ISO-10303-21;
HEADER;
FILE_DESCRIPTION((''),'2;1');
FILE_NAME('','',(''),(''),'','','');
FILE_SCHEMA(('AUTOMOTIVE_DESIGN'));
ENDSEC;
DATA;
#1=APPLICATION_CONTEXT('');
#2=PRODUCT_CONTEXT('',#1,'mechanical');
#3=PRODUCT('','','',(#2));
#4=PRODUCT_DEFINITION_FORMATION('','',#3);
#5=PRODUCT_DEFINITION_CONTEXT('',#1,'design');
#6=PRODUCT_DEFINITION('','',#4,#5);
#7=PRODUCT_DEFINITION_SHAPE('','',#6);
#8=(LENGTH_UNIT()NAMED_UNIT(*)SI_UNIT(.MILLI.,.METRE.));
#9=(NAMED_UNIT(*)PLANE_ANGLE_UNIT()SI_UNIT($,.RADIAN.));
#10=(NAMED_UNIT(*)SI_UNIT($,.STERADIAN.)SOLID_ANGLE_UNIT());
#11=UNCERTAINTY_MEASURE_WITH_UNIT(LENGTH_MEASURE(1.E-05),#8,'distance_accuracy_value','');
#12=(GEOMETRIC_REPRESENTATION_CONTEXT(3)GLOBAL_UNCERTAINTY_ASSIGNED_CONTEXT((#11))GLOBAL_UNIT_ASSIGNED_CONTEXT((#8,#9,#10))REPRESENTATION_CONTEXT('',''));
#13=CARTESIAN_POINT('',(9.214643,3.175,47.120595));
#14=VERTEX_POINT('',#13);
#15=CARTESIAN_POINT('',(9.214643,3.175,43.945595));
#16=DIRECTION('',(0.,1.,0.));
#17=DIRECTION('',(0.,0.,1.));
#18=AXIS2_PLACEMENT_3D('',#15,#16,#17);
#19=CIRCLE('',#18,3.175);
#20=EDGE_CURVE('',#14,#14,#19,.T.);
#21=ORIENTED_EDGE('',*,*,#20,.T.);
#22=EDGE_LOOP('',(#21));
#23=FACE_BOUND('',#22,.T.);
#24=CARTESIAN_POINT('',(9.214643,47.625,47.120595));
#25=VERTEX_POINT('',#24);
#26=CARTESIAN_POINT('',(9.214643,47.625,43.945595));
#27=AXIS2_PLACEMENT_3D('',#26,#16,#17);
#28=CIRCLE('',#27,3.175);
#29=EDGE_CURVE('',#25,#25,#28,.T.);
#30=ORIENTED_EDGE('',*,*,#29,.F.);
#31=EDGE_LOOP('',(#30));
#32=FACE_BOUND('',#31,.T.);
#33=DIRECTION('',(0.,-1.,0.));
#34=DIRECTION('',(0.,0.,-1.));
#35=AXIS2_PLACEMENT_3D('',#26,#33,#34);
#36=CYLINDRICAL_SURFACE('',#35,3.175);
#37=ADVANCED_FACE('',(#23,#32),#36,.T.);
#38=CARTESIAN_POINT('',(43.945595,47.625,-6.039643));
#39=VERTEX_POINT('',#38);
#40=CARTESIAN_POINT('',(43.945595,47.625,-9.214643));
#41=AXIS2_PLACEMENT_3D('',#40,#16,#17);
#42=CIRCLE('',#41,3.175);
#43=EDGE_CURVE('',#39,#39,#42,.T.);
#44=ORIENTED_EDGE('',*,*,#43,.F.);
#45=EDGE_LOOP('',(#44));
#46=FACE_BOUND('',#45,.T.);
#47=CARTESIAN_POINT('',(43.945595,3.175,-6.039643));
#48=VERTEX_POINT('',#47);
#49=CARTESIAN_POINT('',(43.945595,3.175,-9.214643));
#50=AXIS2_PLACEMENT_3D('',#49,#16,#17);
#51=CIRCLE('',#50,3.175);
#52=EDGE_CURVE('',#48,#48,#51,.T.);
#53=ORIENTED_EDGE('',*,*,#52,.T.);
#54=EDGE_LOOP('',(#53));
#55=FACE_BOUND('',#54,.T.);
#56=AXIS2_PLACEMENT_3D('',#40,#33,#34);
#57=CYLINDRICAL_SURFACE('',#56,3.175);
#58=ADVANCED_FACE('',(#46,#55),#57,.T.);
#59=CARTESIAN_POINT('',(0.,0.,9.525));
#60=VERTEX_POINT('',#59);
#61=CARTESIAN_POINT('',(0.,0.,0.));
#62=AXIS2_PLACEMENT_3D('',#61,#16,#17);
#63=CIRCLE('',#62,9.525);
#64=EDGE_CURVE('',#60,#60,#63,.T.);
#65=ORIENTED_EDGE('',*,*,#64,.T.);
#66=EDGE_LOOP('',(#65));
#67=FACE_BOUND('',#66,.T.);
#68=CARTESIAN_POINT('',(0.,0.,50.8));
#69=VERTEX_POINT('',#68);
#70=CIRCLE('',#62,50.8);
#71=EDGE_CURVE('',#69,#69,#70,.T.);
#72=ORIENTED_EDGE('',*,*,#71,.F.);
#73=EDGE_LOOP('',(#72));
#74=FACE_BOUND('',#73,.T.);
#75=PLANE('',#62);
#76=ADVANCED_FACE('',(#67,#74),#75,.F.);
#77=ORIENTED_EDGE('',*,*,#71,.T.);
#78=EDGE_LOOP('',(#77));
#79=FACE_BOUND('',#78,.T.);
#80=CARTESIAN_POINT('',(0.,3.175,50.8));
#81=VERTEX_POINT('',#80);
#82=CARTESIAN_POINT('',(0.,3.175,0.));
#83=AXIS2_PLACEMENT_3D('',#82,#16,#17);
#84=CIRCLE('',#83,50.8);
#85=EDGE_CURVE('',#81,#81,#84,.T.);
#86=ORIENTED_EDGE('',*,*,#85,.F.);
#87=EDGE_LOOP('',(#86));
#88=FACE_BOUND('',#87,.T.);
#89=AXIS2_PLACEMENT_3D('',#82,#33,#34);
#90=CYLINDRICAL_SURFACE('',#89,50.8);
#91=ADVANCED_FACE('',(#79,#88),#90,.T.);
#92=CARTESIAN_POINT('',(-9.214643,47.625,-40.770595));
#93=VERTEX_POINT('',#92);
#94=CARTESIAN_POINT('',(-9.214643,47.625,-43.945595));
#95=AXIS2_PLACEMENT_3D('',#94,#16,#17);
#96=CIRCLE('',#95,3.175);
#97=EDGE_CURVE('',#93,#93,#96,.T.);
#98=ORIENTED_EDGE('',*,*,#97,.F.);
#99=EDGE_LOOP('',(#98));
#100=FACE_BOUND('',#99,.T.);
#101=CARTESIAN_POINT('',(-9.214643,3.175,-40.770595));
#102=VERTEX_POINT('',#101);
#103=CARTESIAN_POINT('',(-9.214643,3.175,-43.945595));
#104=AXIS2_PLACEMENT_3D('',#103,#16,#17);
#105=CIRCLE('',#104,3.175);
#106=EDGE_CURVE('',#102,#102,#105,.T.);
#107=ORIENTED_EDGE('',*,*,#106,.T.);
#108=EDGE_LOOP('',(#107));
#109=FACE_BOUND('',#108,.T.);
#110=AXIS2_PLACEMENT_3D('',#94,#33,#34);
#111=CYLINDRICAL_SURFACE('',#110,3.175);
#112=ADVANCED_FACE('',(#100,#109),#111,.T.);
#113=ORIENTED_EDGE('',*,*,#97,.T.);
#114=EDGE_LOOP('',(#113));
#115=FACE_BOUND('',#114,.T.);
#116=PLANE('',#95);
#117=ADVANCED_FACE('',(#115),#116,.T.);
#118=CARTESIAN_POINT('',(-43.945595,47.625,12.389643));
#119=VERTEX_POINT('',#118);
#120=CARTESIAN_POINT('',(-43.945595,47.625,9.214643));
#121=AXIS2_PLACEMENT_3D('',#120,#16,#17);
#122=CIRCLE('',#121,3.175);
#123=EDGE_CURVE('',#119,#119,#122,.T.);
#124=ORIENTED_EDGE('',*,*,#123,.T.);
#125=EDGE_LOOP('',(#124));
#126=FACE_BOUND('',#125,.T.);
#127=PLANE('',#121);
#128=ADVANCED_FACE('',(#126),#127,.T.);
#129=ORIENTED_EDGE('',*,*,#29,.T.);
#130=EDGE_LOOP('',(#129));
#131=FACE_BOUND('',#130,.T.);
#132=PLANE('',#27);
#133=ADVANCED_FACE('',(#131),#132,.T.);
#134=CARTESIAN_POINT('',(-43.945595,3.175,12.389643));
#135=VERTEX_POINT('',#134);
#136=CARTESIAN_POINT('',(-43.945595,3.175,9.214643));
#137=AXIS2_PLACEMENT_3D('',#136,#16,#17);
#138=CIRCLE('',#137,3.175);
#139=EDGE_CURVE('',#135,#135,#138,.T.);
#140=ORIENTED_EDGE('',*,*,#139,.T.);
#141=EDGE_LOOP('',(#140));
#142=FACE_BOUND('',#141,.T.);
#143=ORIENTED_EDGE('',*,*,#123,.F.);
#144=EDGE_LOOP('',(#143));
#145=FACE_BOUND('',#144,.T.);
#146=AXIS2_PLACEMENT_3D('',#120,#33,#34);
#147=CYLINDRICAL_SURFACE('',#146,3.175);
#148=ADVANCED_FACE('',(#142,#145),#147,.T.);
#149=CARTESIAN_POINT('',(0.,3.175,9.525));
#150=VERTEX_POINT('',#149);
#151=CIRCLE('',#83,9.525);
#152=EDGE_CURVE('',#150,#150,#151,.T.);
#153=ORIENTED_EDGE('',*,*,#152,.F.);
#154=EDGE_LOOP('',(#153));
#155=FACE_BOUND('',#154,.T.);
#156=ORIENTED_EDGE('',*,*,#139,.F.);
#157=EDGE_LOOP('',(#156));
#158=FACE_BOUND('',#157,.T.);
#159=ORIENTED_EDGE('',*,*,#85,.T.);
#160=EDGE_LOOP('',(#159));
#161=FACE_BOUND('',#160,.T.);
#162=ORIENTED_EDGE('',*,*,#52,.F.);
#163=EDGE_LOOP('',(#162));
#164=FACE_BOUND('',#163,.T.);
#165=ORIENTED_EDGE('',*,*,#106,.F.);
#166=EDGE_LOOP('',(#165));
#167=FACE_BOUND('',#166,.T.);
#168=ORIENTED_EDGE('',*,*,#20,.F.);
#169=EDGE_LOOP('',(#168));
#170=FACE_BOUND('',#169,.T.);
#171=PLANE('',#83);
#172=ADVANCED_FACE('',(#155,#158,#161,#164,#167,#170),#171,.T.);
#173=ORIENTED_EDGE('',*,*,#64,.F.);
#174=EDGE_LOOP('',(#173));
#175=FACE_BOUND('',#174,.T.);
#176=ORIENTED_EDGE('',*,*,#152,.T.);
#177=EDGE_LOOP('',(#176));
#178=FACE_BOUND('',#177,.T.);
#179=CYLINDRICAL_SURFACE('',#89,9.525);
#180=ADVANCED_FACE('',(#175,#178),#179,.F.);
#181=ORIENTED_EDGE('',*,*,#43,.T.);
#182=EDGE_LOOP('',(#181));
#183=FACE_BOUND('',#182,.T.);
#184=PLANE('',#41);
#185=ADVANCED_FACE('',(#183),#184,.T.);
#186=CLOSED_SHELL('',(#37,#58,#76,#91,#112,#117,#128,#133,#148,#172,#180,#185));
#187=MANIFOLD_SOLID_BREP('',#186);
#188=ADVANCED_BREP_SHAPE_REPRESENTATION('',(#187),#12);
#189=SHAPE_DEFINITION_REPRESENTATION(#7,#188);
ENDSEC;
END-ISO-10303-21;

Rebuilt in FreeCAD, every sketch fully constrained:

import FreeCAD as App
import Part
import Sketcher

V = App.Vector
Q = App.Units.Quantity

doc = App.newDocument("Part")
body = doc.addObject("PartDesign::Body", "Body")

# Sketch on XZ plane
sketch1 = body.newObject("Sketcher::SketchObject", "Sketch")
sketch1.AttachmentSupport = (doc.getObject("XZ_Plane"), [""])
sketch1.MapMode = "FlatFace"
sketch1.addGeometry(Part.Circle(V(0, 0, 0), V(0, 0, 1), 51), False)
sketch1.addGeometry(Part.Circle(V(0, 0, 0), V(0, 0, 1), 10), False)
sketch1.addConstraint(Sketcher.Constraint("Coincident", 0, 3, -1, 1))
sketch1.addConstraint(Sketcher.Constraint("Coincident", 1, 3, -1, 1))
sketch1.addConstraint(Sketcher.Constraint("Diameter", 0, Q("4 in")))
sketch1.addConstraint(Sketcher.Constraint("Diameter", 1, Q("0.75 in")))
pad1 = body.newObject("PartDesign::Pad", "Pad")
pad1.Profile = sketch1
pad1.Length = Q("0.125 in")
pad1.Reversed = True

# Sketch on XZ plane
sketch2 = body.newObject("Sketcher::SketchObject", "Sketch001")
sketch2.AttachmentSupport = (doc.getObject("XZ_Plane"), [""])
sketch2.MapMode = "FlatFace"
sketch2.AttachmentOffset = App.Placement(V(0, 0, -0.125 * 25.4), App.Rotation())
sketch2.addGeometry(Part.Circle(V(-9.2, -43.9, 0), V(0, 0, 1), 3.2), False)
sketch2.addGeometry(Part.Circle(V(43.9, -9.2, 0), V(0, 0, 1), 3.2), False)
sketch2.addGeometry(Part.Circle(V(9.2, 43.9, 0), V(0, 0, 1), 3.2), False)
sketch2.addGeometry(Part.Circle(V(-43.9, 9.2, 0), V(0, 0, 1), 3.2), False)
sketch2.addConstraint(Sketcher.Constraint("Equal", 0, 1))
sketch2.addConstraint(Sketcher.Constraint("Equal", 1, 2))
sketch2.addConstraint(Sketcher.Constraint("Equal", 2, 3))
sketch2.addConstraint(Sketcher.Constraint("Symmetric", 0, 3, 2, 3, -1, 1))
sketch2.addConstraint(Sketcher.Constraint("Symmetric", 1, 3, 3, 3, -1, 1))
sketch2.addConstraint(Sketcher.Constraint("Diameter", 0, Q("0.25 in")))
sketch2.addConstraint(Sketcher.Constraint("DistanceX", 0, 3, 1, 3, Q("53.160238 mm")))
sketch2.addConstraint(Sketcher.Constraint("DistanceY", 1, 3, 2, 3, Q("53.160238 mm")))
sketch2.addConstraint(Sketcher.Constraint("DistanceY", 0, 3, 2, 3, Q("87.891191 mm")))
sketch2.addConstraint(Sketcher.Constraint("DistanceX", 3, 3, 1, 3, Q("87.891191 mm")))
pad2 = body.newObject("PartDesign::Pad", "Pad001")
pad2.Profile = sketch2
pad2.Length = Q("1.75 in")
pad2.Reversed = True

doc.recompute()
